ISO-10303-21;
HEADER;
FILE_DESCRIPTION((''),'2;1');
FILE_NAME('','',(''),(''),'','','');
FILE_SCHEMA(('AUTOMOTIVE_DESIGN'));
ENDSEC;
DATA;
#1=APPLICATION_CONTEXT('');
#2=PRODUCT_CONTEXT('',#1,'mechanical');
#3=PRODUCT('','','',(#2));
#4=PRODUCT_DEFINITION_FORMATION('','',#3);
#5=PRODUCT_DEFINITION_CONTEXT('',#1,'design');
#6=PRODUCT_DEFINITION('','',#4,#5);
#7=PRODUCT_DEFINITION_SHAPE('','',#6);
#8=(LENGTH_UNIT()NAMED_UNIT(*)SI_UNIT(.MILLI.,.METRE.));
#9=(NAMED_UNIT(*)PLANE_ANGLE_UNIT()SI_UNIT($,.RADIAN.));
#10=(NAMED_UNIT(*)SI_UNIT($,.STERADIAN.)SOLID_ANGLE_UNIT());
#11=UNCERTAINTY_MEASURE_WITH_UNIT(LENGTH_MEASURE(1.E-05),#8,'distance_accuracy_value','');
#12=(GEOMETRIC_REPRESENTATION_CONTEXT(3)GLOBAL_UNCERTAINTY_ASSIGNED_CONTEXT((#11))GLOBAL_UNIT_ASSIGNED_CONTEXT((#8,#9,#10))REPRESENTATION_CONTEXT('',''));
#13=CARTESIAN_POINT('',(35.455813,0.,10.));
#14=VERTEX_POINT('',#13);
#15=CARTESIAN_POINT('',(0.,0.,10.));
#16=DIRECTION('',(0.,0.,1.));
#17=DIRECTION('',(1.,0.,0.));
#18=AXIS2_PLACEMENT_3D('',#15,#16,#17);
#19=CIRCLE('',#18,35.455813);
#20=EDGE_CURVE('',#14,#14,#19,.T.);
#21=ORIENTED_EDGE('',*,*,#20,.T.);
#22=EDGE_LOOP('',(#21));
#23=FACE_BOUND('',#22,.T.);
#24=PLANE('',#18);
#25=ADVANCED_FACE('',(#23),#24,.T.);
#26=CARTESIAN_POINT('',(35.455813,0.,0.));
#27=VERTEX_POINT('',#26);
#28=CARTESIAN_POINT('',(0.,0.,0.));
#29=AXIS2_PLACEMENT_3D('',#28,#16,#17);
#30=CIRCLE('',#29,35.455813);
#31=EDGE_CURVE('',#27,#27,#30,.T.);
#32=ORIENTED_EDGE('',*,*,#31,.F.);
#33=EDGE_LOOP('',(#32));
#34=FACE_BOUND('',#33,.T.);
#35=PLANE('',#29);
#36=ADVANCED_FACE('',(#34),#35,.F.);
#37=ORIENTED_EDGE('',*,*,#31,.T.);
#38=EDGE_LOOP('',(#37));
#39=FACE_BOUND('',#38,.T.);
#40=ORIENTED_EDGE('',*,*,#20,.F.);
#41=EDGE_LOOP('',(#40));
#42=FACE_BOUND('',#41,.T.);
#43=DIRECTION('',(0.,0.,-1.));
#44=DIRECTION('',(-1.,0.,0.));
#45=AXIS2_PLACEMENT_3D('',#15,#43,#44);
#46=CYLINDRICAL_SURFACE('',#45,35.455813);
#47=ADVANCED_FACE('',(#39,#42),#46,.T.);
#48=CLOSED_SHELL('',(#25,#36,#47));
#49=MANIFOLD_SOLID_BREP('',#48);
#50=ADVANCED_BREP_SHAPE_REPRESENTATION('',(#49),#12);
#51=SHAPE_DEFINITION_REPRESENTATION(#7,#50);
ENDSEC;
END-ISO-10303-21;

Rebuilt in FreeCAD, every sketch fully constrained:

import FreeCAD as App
import Part
import Sketcher
from FreeCAD import Vector

doc = App.newDocument("Part")
body = doc.addObject("PartDesign::Body", "Body")

sketch1 = body.newObject("Sketcher::SketchObject", "Sketch")
sketch1.AttachmentSupport = (doc.getObject("XY_Plane"), [""])
sketch1.MapMode = "FlatFace"
sketch1.addGeometry(Part.Circle(Vector(0, 0, 0), Vector(0, 0, 1), 35.455813), False)
sketch1.addConstraint([
    Sketcher.Constraint("Coincident", 0, 3, -1, 1),
    Sketcher.Constraint("Diameter", 0, 70.911626),
])
pad1 = body.newObject("PartDesign::Pad", "Pad")
pad1.Profile = sketch1
pad1.Length = 10

doc.recompute()
